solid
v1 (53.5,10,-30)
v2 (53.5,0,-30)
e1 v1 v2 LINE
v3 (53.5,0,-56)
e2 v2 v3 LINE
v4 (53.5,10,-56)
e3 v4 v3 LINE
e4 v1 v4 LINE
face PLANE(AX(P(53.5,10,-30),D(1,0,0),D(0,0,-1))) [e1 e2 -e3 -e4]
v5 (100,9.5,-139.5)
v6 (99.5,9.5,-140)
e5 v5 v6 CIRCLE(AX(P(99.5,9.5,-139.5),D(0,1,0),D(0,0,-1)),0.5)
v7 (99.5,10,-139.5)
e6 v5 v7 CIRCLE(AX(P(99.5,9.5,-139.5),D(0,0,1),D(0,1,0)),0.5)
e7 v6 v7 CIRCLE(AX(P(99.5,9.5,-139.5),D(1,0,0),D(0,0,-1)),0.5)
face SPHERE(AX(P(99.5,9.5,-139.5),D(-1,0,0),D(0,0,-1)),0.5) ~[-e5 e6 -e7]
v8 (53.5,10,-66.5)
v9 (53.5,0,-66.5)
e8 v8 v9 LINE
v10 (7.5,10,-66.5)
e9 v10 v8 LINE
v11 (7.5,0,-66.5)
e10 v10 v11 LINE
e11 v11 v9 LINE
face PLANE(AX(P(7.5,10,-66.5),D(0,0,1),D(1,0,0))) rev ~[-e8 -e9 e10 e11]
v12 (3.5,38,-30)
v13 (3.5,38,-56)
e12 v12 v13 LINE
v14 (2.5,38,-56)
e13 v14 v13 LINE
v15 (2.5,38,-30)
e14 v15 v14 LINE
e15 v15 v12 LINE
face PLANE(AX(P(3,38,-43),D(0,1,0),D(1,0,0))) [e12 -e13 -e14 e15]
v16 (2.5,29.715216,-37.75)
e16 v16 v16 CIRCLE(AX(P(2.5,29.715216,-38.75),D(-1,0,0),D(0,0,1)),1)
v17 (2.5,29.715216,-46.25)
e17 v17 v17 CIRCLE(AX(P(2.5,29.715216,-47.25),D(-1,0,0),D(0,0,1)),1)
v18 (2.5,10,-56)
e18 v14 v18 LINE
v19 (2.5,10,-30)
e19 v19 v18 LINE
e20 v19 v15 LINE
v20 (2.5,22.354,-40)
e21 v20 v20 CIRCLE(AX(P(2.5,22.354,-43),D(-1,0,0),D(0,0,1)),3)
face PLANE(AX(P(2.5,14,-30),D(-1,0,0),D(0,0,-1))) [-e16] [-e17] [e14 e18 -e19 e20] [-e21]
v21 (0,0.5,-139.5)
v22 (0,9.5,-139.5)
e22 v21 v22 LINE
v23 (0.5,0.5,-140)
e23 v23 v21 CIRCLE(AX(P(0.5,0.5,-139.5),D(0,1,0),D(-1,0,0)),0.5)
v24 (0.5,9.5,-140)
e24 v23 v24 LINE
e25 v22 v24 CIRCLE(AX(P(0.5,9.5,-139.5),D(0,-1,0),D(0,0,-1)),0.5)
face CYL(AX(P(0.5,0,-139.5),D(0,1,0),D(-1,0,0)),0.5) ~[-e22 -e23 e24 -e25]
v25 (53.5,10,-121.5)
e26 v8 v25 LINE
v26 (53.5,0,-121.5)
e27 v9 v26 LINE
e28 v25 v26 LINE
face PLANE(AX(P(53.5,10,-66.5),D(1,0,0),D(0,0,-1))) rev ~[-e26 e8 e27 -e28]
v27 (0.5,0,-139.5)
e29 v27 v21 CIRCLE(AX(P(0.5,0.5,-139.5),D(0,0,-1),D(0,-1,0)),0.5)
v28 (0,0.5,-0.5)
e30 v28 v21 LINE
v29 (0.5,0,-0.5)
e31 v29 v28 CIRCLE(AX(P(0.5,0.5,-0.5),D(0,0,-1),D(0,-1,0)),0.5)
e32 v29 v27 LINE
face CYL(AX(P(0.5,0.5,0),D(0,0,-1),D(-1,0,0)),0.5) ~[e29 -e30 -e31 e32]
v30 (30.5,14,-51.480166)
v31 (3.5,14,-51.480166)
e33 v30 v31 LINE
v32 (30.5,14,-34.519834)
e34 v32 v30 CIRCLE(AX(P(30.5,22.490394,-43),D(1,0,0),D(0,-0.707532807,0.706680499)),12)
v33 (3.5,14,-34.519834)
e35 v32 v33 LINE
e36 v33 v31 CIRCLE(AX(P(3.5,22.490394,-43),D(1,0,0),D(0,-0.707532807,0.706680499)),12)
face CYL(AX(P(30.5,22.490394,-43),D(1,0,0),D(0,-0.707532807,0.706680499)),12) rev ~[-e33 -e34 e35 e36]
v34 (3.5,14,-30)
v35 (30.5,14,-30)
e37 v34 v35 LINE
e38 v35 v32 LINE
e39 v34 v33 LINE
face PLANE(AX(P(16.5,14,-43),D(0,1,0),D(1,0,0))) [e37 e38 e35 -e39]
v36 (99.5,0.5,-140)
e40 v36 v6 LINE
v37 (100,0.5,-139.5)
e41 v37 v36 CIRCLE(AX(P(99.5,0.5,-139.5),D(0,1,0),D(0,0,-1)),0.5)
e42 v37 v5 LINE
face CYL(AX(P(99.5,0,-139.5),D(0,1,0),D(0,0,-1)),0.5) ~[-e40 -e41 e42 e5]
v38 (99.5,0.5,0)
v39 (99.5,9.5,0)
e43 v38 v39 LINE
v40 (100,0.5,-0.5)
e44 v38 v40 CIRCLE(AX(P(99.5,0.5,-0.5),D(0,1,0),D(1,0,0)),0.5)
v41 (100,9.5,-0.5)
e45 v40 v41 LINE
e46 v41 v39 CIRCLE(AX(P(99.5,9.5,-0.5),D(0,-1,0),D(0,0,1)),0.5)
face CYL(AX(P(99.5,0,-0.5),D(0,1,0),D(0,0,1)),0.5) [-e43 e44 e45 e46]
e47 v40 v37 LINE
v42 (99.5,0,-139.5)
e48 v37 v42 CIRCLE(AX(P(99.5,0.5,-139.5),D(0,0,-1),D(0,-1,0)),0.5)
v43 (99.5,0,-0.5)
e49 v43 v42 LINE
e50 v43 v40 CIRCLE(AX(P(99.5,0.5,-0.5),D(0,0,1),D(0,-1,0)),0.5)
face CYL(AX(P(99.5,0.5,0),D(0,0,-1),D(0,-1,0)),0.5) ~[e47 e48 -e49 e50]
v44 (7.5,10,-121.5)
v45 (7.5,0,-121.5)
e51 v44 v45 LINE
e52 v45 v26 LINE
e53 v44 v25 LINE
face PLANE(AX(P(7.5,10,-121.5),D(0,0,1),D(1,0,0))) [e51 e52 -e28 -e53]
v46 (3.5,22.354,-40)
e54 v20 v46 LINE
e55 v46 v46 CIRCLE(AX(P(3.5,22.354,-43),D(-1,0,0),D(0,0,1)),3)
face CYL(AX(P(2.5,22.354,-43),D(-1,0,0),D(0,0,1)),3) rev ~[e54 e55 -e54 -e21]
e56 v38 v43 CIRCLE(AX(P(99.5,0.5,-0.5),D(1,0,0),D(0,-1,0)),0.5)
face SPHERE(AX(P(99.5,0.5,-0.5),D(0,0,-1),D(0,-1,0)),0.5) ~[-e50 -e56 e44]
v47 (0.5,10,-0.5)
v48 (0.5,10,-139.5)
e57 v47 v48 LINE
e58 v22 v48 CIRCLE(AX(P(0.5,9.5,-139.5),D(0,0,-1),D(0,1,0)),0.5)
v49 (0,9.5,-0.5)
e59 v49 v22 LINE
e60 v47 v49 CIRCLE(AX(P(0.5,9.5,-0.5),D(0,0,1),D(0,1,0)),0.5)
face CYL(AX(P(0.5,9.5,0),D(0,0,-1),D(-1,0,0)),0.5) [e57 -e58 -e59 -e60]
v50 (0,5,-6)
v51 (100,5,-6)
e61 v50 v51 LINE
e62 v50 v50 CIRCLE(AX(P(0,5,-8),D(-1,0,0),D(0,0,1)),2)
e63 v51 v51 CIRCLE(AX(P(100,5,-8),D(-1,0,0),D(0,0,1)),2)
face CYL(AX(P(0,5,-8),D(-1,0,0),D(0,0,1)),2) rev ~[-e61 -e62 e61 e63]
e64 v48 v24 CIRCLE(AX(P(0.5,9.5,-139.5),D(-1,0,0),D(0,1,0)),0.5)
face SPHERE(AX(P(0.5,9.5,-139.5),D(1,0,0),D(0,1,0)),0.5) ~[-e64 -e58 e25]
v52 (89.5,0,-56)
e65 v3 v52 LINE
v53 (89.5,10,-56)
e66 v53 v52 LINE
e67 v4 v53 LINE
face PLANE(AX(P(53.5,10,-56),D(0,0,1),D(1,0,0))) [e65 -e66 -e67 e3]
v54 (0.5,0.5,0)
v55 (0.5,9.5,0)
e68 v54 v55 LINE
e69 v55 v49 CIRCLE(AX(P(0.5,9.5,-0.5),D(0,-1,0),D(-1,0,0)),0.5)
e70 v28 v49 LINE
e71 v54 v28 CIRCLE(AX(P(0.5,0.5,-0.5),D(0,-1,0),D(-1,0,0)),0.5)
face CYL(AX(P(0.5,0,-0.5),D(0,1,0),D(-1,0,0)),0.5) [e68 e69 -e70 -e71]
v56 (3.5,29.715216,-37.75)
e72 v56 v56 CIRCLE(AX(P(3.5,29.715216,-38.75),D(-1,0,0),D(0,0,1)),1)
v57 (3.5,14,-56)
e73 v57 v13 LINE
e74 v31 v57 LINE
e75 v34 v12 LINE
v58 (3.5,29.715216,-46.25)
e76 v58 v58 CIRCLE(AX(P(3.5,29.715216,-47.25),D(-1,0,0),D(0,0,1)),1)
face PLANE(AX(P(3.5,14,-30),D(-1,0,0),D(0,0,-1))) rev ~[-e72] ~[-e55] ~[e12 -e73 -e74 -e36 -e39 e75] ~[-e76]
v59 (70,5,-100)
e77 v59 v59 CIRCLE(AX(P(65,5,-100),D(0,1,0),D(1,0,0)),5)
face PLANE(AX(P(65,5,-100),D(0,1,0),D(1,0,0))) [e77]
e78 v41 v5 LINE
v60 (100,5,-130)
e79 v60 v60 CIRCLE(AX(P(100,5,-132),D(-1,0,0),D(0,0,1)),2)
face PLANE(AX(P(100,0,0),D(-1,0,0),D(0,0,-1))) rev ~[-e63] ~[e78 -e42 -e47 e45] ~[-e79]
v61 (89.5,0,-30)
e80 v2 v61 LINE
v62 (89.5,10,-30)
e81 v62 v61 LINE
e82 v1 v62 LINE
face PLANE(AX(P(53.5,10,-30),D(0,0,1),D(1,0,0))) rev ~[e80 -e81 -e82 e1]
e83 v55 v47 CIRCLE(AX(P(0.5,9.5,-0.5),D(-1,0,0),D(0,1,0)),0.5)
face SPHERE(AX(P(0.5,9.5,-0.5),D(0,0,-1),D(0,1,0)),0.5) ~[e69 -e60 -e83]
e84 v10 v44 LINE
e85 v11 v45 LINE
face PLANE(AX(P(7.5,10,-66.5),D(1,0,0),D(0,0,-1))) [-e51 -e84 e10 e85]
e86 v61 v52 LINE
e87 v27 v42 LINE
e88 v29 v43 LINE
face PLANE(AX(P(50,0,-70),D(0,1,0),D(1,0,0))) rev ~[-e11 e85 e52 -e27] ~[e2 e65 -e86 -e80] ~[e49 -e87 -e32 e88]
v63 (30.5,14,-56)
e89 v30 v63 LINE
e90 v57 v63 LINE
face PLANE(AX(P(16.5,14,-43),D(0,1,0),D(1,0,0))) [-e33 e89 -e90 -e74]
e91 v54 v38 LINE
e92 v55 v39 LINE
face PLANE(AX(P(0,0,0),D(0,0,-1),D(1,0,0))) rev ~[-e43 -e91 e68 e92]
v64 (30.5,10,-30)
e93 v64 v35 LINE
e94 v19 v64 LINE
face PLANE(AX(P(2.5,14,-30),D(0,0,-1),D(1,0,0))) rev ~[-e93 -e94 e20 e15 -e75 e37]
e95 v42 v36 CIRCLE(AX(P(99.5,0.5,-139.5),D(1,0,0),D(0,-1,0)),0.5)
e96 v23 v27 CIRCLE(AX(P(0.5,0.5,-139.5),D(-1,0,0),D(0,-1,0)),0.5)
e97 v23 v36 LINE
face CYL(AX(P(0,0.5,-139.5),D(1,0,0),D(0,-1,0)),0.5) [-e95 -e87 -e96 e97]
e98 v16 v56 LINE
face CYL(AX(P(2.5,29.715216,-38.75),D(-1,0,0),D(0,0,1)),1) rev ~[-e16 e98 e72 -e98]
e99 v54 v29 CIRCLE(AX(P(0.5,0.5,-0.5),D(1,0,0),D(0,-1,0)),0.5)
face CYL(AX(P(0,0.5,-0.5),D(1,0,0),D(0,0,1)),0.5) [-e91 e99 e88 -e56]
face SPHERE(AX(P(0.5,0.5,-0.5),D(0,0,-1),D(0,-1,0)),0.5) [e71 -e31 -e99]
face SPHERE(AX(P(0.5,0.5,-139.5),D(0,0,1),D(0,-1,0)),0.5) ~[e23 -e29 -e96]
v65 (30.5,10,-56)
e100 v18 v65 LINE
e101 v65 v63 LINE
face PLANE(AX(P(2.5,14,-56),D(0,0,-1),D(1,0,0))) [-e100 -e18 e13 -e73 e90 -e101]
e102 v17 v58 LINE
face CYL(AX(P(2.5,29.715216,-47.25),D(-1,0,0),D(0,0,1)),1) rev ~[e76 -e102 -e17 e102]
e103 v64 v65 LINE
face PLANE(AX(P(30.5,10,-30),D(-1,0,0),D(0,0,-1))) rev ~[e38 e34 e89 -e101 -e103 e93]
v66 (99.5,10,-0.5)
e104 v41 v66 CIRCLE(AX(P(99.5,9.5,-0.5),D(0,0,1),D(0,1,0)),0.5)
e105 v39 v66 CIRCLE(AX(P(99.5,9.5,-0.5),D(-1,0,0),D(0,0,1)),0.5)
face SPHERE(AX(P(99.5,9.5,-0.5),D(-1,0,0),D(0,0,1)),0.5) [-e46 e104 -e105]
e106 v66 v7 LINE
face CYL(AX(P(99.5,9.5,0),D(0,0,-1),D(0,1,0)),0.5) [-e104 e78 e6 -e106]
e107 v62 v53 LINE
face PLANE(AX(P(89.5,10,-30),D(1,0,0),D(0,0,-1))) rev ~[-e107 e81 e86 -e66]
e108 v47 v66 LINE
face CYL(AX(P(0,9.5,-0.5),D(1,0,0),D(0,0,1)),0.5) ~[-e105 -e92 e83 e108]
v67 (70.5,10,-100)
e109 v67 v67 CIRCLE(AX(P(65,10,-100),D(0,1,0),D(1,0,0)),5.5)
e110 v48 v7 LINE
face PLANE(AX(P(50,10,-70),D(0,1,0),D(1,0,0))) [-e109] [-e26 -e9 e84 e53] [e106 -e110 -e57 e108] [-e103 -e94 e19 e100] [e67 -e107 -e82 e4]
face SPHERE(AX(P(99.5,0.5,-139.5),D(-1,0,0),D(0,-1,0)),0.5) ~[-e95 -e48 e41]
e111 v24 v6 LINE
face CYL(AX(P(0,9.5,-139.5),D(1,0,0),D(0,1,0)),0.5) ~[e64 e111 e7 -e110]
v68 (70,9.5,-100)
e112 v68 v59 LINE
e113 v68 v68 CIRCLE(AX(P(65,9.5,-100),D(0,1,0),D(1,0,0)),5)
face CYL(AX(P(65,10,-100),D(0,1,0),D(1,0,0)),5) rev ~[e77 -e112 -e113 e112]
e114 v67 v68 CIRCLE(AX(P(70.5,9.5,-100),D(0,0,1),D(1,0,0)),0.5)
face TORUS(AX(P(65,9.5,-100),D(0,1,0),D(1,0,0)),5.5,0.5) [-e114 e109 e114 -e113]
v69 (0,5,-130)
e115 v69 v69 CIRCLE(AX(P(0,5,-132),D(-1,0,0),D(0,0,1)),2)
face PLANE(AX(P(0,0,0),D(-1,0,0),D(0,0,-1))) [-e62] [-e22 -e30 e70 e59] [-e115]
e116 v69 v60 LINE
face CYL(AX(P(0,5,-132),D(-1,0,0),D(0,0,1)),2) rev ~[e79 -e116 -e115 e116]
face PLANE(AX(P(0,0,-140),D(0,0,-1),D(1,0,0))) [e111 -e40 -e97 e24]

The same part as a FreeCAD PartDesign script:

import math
import FreeCAD as App
import Part
import Sketcher

V = App.Vector
Q = App.Units.Quantity


def edges_at(feature, points):
    """Names of the edges that pass closest to the given points."""
    edges = feature.Shape.Edges
    near = lambda p: min(range(len(edges)), key=lambda i: edges[i].distToShape(Part.Vertex(*p))[0])
    return sorted({f"Edge{near(p) + 1}" for p in points})


def add_polygon(sketch, points):
    """Adds a closed chain of lines whose ends are joined by coincident constraints."""
    first, n = sketch.GeometryCount, len(points)
    for a, b in zip(points, points[1:] + points[:1]):
        sketch.addGeometry(Part.LineSegment(App.Vector(*a, 0), App.Vector(*b, 0)), False)
    for i in range(n):
        sketch.addConstraint(Sketcher.Constraint("Coincident", first + i, 2, first + (i + 1) % n, 1))

doc = App.newDocument("Part")
body = doc.addObject("PartDesign::Body", "Body")

sketch1 = body.newObject("Sketcher::SketchObject", "Sketch")
sketch1.AttachmentSupport = (doc.getObject("XZ_Plane"), [""])
sketch1.MapMode = "FlatFace"
add_polygon(sketch1, [(0, -140), (0, 0), (100, 0), (100, -140)])
sketch1.addConstraint(Sketcher.Constraint("Vertical", 0))
sketch1.addConstraint(Sketcher.Constraint("Horizontal", 1))
sketch1.addConstraint(Sketcher.Constraint("Vertical", 2))
sketch1.addConstraint(Sketcher.Constraint("Horizontal", 3))
sketch1.addConstraint(Sketcher.Constraint("Coincident", 0, 2, -1, 1))
sketch1.addConstraint(Sketcher.Constraint("DistanceX", 1, 1, 1, 2, Q("100 mm")))
sketch1.addConstraint(Sketcher.Constraint("DistanceY", 0, 1, 0, 2, Q("140 mm")))
pad1 = body.newObject("PartDesign::Pad", "Pad")
pad1.Profile = sketch1
pad1.Length = 10
pad1.Reversed = True

sketch2 = body.newObject("Sketcher::SketchObject", "Sketch001")
sketch2.AttachmentSupport = (doc.getObject("XZ_Plane"), [""])
sketch2.MapMode = "FlatFace"
sketch2.AttachmentOffset = App.Placement(V(0, 0, -10), App.Rotation())
sketch2.addGeometry(Part.Circle(V(65, -100, 0), V(0, 0, 1), 5), False)
sketch2.addConstraint(Sketcher.Constraint("Diameter", 0, Q("10 mm")))
sketch2.addConstraint(Sketcher.Constraint("DistanceX", -1, 1, 0, 3, Q("65 mm")))
sketch2.addConstraint(Sketcher.Constraint("DistanceY", 0, 3, -1, 1, Q("100 mm")))
pocket1 = body.newObject("PartDesign::Pocket", "Pocket")
pocket1.Profile = sketch2
pocket1.Length = 5
pocket1.Reversed = True

sketch3 = body.newObject("Sketcher::SketchObject", "Sketch002")
sketch3.AttachmentSupport = (doc.getObject("YZ_Plane"), [""])
sketch3.MapMode = "FlatFace"
sketch3.addGeometry(Part.Circle(V(5, -8, 0), V(0, 0, 1), 2), False)
sketch3.addConstraint(Sketcher.Constraint("Diameter", 0, Q("4 mm")))
sketch3.addConstraint(Sketcher.Constraint("DistanceX", -1, 1, 0, 3, Q("5 mm")))
sketch3.addConstraint(Sketcher.Constraint("DistanceY", 0, 3, -1, 1, Q("8 mm")))
pocket2 = body.newObject("PartDesign::Pocket", "Pocket001")
pocket2.Profile = sketch3
pocket2.Type = "ThroughAll"
pocket2.Reversed = True

sketch4 = body.newObject("Sketcher::SketchObject", "Sketch003")
sketch4.AttachmentSupport = (doc.getObject("YZ_Plane"), [""])
sketch4.MapMode = "FlatFace"
sketch4.addGeometry(Part.Circle(V(5, -132, 0), V(0, 0, 1), 2), False)
sketch4.addConstraint(Sketcher.Constraint("Diameter", 0, Q("4 mm")))
sketch4.addConstraint(Sketcher.Constraint("DistanceX", -1, 1, 0, 3, Q("5 mm")))
sketch4.addConstraint(Sketcher.Constraint("DistanceY", 0, 3, -1, 1, Q("132 mm")))
pocket3 = body.newObject("PartDesign::Pocket", "Pocket002")
pocket3.Profile = sketch4
pocket3.Type = "ThroughAll"
pocket3.Reversed = True
doc.recompute()

fillet = body.newObject("PartDesign::Fillet", "Fillet")
fillet.Base = (pocket3, edges_at(pocket3, [
    (50, 10, -140),
    (0, 10, -70),
    (50, 10, 0),
    (0, 0, -70),
    (50, 0, -140),
    (100, 0, -70),
    (50, 0, 0),
    (0, 5, 0),
    (0, 5, -140),
    (100, 5, -140),
    (100, 5, 0),
    (100, 10, -70),
]))
fillet.Radius = 0.5
doc.recompute()

fillet2 = body.newObject("PartDesign::Fillet", "Fillet001")
fillet2.Base = (fillet, edges_at(fillet, [(60, 10, -100)]))
fillet2.Radius = 0.5

sketch5 = body.newObject("Sketcher::SketchObject", "Sketch004")
sketch5.AttachmentSupport = (doc.getObject("XZ_Plane"), [""])
sketch5.MapMode = "FlatFace"
sketch5.AttachmentOffset = App.Placement(V(0, 0, -10), App.Rotation())
add_polygon(sketch5, [(2, -56), (2, -30), (30, -30), (30, -56)])
sketch5.addConstraint(Sketcher.Constraint("Vertical", 0))
sketch5.addConstraint(Sketcher.Constraint("Horizontal", 1))
sketch5.addConstraint(Sketcher.Constraint("Vertical", 2))
sketch5.addConstraint(Sketcher.Constraint("Horizontal", 3))
sketch5.addConstraint(Sketcher.Constraint("DistanceX", 1, 1, 1, 2, Q("28 mm")))
sketch5.addConstraint(Sketcher.Constraint("DistanceY", 0, 1, 0, 2, Q("26 mm")))
sketch5.addConstraint(Sketcher.Constraint("DistanceY", 0, 2, -1, 1, Q("30 mm")))
sketch5.addConstraint(Sketcher.Constraint("DistanceX", -1, 1, 0, 2, Q("2.5 mm")))
pad2 = body.newObject("PartDesign::Pad", "Pad001")
pad2.Profile = sketch5
pad2.Length = 4
pad2.Reversed = True

sketch6 = body.newObject("Sketcher::SketchObject", "Sketch005")
sketch6.AttachmentSupport = (doc.getObject("XZ_Plane"), [""])
sketch6.MapMode = "FlatFace"
sketch6.AttachmentOffset = App.Placement(V(0, 0, -10), App.Rotation())
add_polygon(sketch6, [(8, -122), (8, -66), (54, -66), (54, -122)])
add_polygon(sketch6, [(54, -56), (54, -30), (90, -30), (90, -56)])
sketch6.addConstraint(Sketcher.Constraint("Vertical", 0))
sketch6.addConstraint(Sketcher.Constraint("Horizontal", 1))
sketch6.addConstraint(Sketcher.Constraint("Vertical", 2))
sketch6.addConstraint(Sketcher.Constraint("Horizontal", 3))
sketch6.addConstraint(Sketcher.Constraint("Vertical", 4))
sketch6.addConstraint(Sketcher.Constraint("Horizontal", 5))
sketch6.addConstraint(Sketcher.Constraint("Vertical", 6))
sketch6.addConstraint(Sketcher.Constraint("Horizontal", 7))
sketch6.addConstraint(Sketcher.Constraint("Vertical", 2, 2, 4, 2))
sketch6.addConstraint(Sketcher.Constraint("DistanceX", 1, 1, 1, 2, Q("46 mm")))
sketch6.addConstraint(Sketcher.Constraint("DistanceX", 5, 1, 5, 2, Q("36 mm")))
sketch6.addConstraint(Sketcher.Constraint("DistanceY", 0, 1, 0, 2, Q("55 mm")))
sketch6.addConstraint(Sketcher.Constraint("DistanceY", 4, 1, 4, 2, Q("26 mm")))
sketch6.addConstraint(Sketcher.Constraint("DistanceY", 4, 2, -1, 1, Q("30 mm")))
sketch6.addConstraint(Sketcher.Constraint("DistanceX", -1, 1, 0, 2, Q("7.5 mm")))
sketch6.addConstraint(Sketcher.Constraint("DistanceY", 0, 2, -1, 1, Q("66.5 mm")))
pocket4 = body.newObject("PartDesign::Pocket", "Pocket003")
pocket4.Profile = sketch6
pocket4.Type = "ThroughAll"
pocket4.Reversed = True

sketch7 = body.newObject("Sketcher::SketchObject", "Sketch006")
sketch7.AttachmentSupport = (doc.getObject("XZ_Plane"), [""])
sketch7.MapMode = "FlatFace"
sketch7.AttachmentOffset = App.Placement(V(0, 0, -14), App.Rotation())
add_polygon(sketch7, [(2.5, -56), (2.5, -30), (3.5, -30), (3.5, -56)])
sketch7.addConstraint(Sketcher.Constraint("Vertical", 0))
sketch7.addConstraint(Sketcher.Constraint("Horizontal", 1))
sketch7.addConstraint(Sketcher.Constraint("Vertical", 2))
sketch7.addConstraint(Sketcher.Constraint("Horizontal", 3))
sketch7.addConstraint(Sketcher.Constraint("DistanceX", 1, 1, 1, 2, Q("1 mm")))
sketch7.addConstraint(Sketcher.Constraint("DistanceY", 0, 1, 0, 2, Q("26 mm")))
sketch7.addConstraint(Sketcher.Constraint("DistanceY", 0, 2, -1, 1, Q("30 mm")))
sketch7.addConstraint(Sketcher.Constraint("DistanceX", -1, 1, 0, 2, Q("2.5 mm")))
pad3 = body.newObject("PartDesign::Pad", "Pad002")
pad3.Profile = sketch7
pad3.Length = 24
pad3.Reversed = True

sketch8 = body.newObject("Sketcher::SketchObject", "Sketch007")
sketch8.AttachmentSupport = (doc.getObject("YZ_Plane"), [""])
sketch8.MapMode = "FlatFace"
sketch8.AttachmentOffset = App.Placement(V(0, 0, 2.5), App.Rotation())
sketch8.addGeometry(Part.Circle(V(22.4, -43, 0), V(0, 0, 1), 3), False)
sketch8.addGeometry(Part.Circle(V(29.7, -38.8, 0), V(0, 0, 1), 1), False)
sketch8.addGeometry(Part.Circle(V(29.7, -47.2, 0), V(0, 0, 1), 1), False)
sketch8.addConstraint(Sketcher.Constraint("Equal", 1, 2))
sketch8.addConstraint(Sketcher.Constraint("Vertical", 1, 3, 2, 3))
sketch8.addConstraint(Sketcher.Constraint("Diameter", 0, Q("6 mm")))
sketch8.addConstraint(Sketcher.Constraint("Diameter", 1, Q("2 mm")))
sketch8.addConstraint(Sketcher.Constraint("DistanceY", 0, 3, -1, 1, Q("43 mm")))
sketch8.addConstraint(Sketcher.Constraint("DistanceY", 2, 3, 1, 3, Q("8.5 mm")))
sketch8.addConstraint(Sketcher.Constraint("DistanceY", 1, 3, -1, 1, Q("38.75 mm")))
sketch8.addConstraint(Sketcher.Constraint("DistanceX", -1, 1, 0, 3, Q("22.354 mm")))
sketch8.addConstraint(Sketcher.Constraint("DistanceX", -1, 1, 1, 3, Q("29.715216 mm")))
pocket5 = body.newObject("PartDesign::Pocket", "Pocket004")
pocket5.Profile = sketch8
pocket5.Length = 1
pocket5.Reversed = True

sketch9 = body.newObject("Sketcher::SketchObject", "Sketch008")
sketch9.AttachmentSupport = (doc.getObject("YZ_Plane"), [""])
sketch9.MapMode = "FlatFace"
sketch9.AttachmentOffset = App.Placement(V(0, 0, 30.5), App.Rotation())
sketch9.addGeometry(Part.LineSegment(V(14, 205, 0), V(14, -35, 0)), False)
sketch9.addGeometry(Part.ArcOfCircle(Part.Circle(V(22, -43, 0), V(0, 0, 1), 12), math.radians(135), math.radians(225)), False)
sketch9.addGeometry(Part.LineSegment(V(14, -51, 0), V(14, -291, 0)), False)
sketch9.addGeometry(Part.LineSegment(V(14, -291, 0), V(484, -291, 0)), False)
sketch9.addGeometry(Part.LineSegment(V(484, -291, 0), V(484, 205, 0)), False)
sketch9.addGeometry(Part.LineSegment(V(484, 205, 0), V(14, 205, 0)), False)
sketch9.addConstraint(Sketcher.Constraint("Coincident", 0, 2, 1, 1))
sketch9.addConstraint(Sketcher.Constraint("Coincident", 1, 2, 2, 1))
sketch9.addConstraint(Sketcher.Constraint("Coincident", 2, 2, 3, 1))
sketch9.addConstraint(Sketcher.Constraint("Coincident", 3, 2, 4, 1))
sketch9.addConstraint(Sketcher.Constraint("Coincident", 4, 2, 5, 1))
sketch9.addConstraint(Sketcher.Constraint("Coincident", 5, 2, 0, 1))
sketch9.addConstraint(Sketcher.Constraint("Vertical", 0))
sketch9.addConstraint(Sketcher.Constraint("Vertical", 2))
sketch9.addConstraint(Sketcher.Constraint("Horizontal", 3))
sketch9.addConstraint(Sketcher.Constraint("Vertical", 4))
sketch9.addConstraint(Sketcher.Constraint("Horizontal", 5))
sketch9.addConstraint(Sketcher.Constraint("Vertical", 0, 2, 1, 2))
sketch9.addConstraint(Sketcher.Constraint("Equal", 0, 2))
sketch9.addConstraint(Sketcher.Constraint("Radius", 1, Q("12 mm")))
sketch9.addConstraint(Sketcher.Constraint("DistanceY", 1, 3, -1, 1, Q("43 mm")))
sketch9.addConstraint(Sketcher.Constraint("DistanceX", -1, 1, 0, 2, Q("14 mm")))
sketch9.addConstraint(Sketcher.Constraint("DistanceY", 0, 2, 0, 1, Q("239.695321 mm")))
sketch9.addConstraint(Sketcher.Constraint("DistanceX", 3, 1, 3, 2, Q("470.350974 mm")))
sketch9.addConstraint(Sketcher.Constraint("DistanceY", 4, 1, 4, 2, Q("496.350974 mm")))
pocket6 = body.newObject("PartDesign::Pocket", "Pocket005")
pocket6.Profile = sketch9
pocket6.Type = "TwoLengths"
pocket6.Length = 70.5
pocket6.Length2 = 27
pocket6.Reversed = True

doc.recompute()
